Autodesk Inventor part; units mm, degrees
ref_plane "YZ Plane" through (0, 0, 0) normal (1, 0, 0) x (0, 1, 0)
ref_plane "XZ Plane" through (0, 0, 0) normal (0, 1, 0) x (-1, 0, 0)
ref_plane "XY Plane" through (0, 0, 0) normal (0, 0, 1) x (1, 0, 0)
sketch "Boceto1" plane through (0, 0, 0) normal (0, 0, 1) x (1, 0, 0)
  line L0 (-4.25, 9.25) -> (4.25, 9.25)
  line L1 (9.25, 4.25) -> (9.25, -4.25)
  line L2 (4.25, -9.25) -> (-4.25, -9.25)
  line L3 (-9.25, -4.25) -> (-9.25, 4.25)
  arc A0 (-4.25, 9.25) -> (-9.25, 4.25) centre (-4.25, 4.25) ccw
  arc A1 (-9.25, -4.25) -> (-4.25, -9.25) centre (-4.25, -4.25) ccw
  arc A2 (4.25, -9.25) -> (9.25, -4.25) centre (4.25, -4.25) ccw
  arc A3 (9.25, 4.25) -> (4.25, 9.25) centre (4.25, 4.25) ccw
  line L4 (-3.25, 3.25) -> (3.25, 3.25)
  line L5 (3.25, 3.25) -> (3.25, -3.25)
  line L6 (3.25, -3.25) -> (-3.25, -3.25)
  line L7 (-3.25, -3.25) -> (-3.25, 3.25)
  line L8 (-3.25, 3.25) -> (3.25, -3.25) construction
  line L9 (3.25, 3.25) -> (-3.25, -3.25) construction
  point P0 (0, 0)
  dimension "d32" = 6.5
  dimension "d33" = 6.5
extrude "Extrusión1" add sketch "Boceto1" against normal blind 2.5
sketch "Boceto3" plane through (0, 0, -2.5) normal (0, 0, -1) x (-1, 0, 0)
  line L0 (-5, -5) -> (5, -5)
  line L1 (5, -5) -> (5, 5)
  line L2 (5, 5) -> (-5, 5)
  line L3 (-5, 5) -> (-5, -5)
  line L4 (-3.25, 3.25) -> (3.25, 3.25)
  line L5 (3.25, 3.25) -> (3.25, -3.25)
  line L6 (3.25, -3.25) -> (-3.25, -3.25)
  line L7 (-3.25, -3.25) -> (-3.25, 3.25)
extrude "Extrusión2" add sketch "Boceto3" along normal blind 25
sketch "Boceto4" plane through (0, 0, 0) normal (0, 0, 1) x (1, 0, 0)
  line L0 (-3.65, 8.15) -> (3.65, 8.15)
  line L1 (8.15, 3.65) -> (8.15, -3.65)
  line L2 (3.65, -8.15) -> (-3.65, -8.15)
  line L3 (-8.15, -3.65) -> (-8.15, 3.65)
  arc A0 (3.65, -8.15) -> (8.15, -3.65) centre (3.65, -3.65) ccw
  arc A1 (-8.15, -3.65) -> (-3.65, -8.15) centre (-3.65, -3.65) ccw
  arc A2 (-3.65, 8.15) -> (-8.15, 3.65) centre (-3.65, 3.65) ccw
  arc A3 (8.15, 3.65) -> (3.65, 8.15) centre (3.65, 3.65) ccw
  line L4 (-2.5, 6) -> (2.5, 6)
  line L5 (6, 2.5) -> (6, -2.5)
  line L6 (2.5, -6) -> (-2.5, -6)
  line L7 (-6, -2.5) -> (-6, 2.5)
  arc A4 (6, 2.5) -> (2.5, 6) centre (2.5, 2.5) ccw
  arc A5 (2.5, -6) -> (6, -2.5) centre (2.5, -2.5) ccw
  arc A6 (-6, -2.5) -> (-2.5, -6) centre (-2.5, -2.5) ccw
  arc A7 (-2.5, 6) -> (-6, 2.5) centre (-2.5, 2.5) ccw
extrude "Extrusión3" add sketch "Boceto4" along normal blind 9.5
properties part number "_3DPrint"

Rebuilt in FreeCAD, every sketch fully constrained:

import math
import FreeCAD as App
import Part
import Sketcher
from FreeCAD import Vector
Q = App.Units.Quantity


def add_polygon(sketch, points):
    """Adds a closed chain of lines whose ends are joined by coincident constraints."""
    first, n = sketch.GeometryCount, len(points)
    for a, b in zip(points, points[1:] + points[:1]):
        sketch.addGeometry(Part.LineSegment(App.Vector(*a, 0), App.Vector(*b, 0)), False)
    for i in range(n):
        sketch.addConstraint(Sketcher.Constraint("Coincident", first + i, 2, first + (i + 1) % n, 1))

doc = App.newDocument("Part")
body = doc.addObject("PartDesign::Body", "Body")

# Sketch on XY plane
sketch1 = body.newObject("Sketcher::SketchObject", "Sketch")
sketch1.AttachmentSupport = (doc.getObject("XY_Plane"), [""])
sketch1.MapMode = "FlatFace"
sketch1.addGeometry(Part.LineSegment(Vector(4, 9, 0), Vector(-4, 9, 0)), False)  # 0
sketch1.addGeometry(Part.ArcOfCircle(Part.Circle(Vector(-4, 4, 0), Vector(0, 0, 1), 5), math.radians(90), math.radians(180)), False)  # 1
sketch1.addGeometry(Part.LineSegment(Vector(-9, 4, 0), Vector(-9, -4, 0)), False)  # 2
sketch1.addGeometry(Part.ArcOfCircle(Part.Circle(Vector(-4, -4, 0), Vector(0, 0, 1), 5), math.radians(180), math.radians(270)), False)  # 3
sketch1.addGeometry(Part.LineSegment(Vector(-4, -9, 0), Vector(4, -9, 0)), False)  # 4
sketch1.addGeometry(Part.ArcOfCircle(Part.Circle(Vector(4, -4, 0), Vector(0, 0, 1), 5), math.radians(-90), math.radians(0)), False)  # 5
sketch1.addGeometry(Part.LineSegment(Vector(9, -4, 0), Vector(9, 4, 0)), False)  # 6
sketch1.addGeometry(Part.ArcOfCircle(Part.Circle(Vector(4, 4, 0), Vector(0, 0, 1), 5), math.radians(0), math.radians(90)), False)  # 7
add_polygon(sketch1, [(-3, -3), (-3, 3), (3, 3), (3, -3)])  # lines 8-11
sketch1.addConstraint(Sketcher.Constraint("Tangent", 0, 2, 1, 1))
sketch1.addConstraint(Sketcher.Constraint("Tangent", 1, 2, 2, 1))
sketch1.addConstraint(Sketcher.Constraint("Tangent", 2, 2, 3, 1))
sketch1.addConstraint(Sketcher.Constraint("Tangent", 3, 2, 4, 1))
sketch1.addConstraint(Sketcher.Constraint("Tangent", 4, 2, 5, 1))
sketch1.addConstraint(Sketcher.Constraint("Tangent", 5, 2, 6, 1))
sketch1.addConstraint(Sketcher.Constraint("Tangent", 6, 2, 7, 1))
sketch1.addConstraint(Sketcher.Constraint("Tangent", 7, 2, 0, 1))
sketch1.addConstraint(Sketcher.Constraint("Horizontal", 0))
sketch1.addConstraint(Sketcher.Constraint("Vertical", 2))
sketch1.addConstraint(Sketcher.Constraint("Horizontal", 4))
sketch1.addConstraint(Sketcher.Constraint("Vertical", 6))
sketch1.addConstraint(Sketcher.Constraint("Vertical", 8))
sketch1.addConstraint(Sketcher.Constraint("Horizontal", 9))
sketch1.addConstraint(Sketcher.Constraint("Vertical", 10))
sketch1.addConstraint(Sketcher.Constraint("Horizontal", 11))
sketch1.addConstraint(Sketcher.Constraint("Equal", 1, 3))
sketch1.addConstraint(Sketcher.Constraint("Equal", 3, 5))
sketch1.addConstraint(Sketcher.Constraint("Equal", 5, 7))
sketch1.addConstraint(Sketcher.Constraint("Symmetric", 1, 3, 5, 3, -1, 1))
sketch1.addConstraint(Sketcher.Constraint("Symmetric", 8, 2, 10, 2, -1, 1))
sketch1.addConstraint(Sketcher.Constraint("Equal", 4, 2))
sketch1.addConstraint(Sketcher.Constraint("Equal", 11, 8))
sketch1.addConstraint(Sketcher.Constraint("DistanceX", 9, 1, 9, 2, Q("6.5 mm")))
sketch1.addConstraint(Sketcher.Constraint("Radius", 1, Q("5 mm")))
sketch1.addConstraint(Sketcher.Constraint("DistanceX", 0, 2, 0, 1, Q("8.5 mm")))
pad1 = body.newObject("PartDesign::Pad", "Pad")
pad1.Profile = sketch1
pad1.Length = 2.5
pad1.Reversed = True

# Sketch on XY plane
sketch2 = body.newObject("Sketcher::SketchObject", "Sketch001")
sketch2.AttachmentSupport = (doc.getObject("XY_Plane"), [""])
sketch2.MapMode = "FlatFace"
sketch2.AttachmentOffset = App.Placement(Vector(0, 0, -2.5), App.Rotation())
add_polygon(sketch2, [(5, 5), (5, -5), (-5, -5), (-5, 5)])  # lines 0-3
add_polygon(sketch2, [(3, -3), (3, 3), (-3, 3), (-3, -3)])  # lines 4-7
sketch2.addConstraint(Sketcher.Constraint("Vertical", 0))
sketch2.addConstraint(Sketcher.Constraint("Horizontal", 1))
sketch2.addConstraint(Sketcher.Constraint("Vertical", 2))
sketch2.addConstraint(Sketcher.Constraint("Horizontal", 3))
sketch2.addConstraint(Sketcher.Constraint("Vertical", 4))
sketch2.addConstraint(Sketcher.Constraint("Horizontal", 5))
sketch2.addConstraint(Sketcher.Constraint("Vertical", 6))
sketch2.addConstraint(Sketcher.Constraint("Horizontal", 7))
sketch2.addConstraint(Sketcher.Constraint("Symmetric", 0, 2, 2, 2, -1, 1))
sketch2.addConstraint(Sketcher.Constraint("Symmetric", 4, 2, 6, 2, -1, 1))
sketch2.addConstraint(Sketcher.Constraint("Equal", 3, 0))
sketch2.addConstraint(Sketcher.Constraint("Equal", 7, 4))
sketch2.addConstraint(Sketcher.Constraint("DistanceX", 1, 2, 1, 1, Q("10 mm")))
sketch2.addConstraint(Sketcher.Constraint("DistanceX", 5, 2, 5, 1, Q("6.5 mm")))
pad2 = body.newObject("PartDesign::Pad", "Pad001")
pad2.Profile = sketch2
pad2.Length = 25
pad2.Reversed = True

# Sketch on XY plane
sketch3 = body.newObject("Sketcher::SketchObject", "Sketch002")
sketch3.AttachmentSupport = (doc.getObject("XY_Plane"), [""])
sketch3.MapMode = "FlatFace"
sketch3.addGeometry(Part.LineSegment(Vector(3.6, 8.2, 0), Vector(-3.6, 8.2, 0)), False)
sketch3.addGeometry(Part.ArcOfCircle(Part.Circle(Vector(-3.6, 3.6, 0), Vector(0, 0, 1), 4.5), math.radians(90), math.radians(180)), False)
sketch3.addGeometry(Part.LineSegment(Vector(-8.2, 3.6, 0), Vector(-8.2, -3.6, 0)), False)
sketch3.addGeometry(Part.ArcOfCircle(Part.Circle(Vector(-3.6, -3.6, 0), Vector(0, 0, 1), 4.5), math.radians(180), math.radians(270)), False)
sketch3.addGeometry(Part.LineSegment(Vector(-3.6, -8.2, 0), Vector(3.6, -8.2, 0)), False)
sketch3.addGeometry(Part.ArcOfCircle(Part.Circle(Vector(3.6, -3.6, 0), Vector(0, 0, 1), 4.5), math.radians(-90), math.radians(0)), False)
sketch3.addGeometry(Part.LineSegment(Vector(8.2, -3.6, 0), Vector(8.2, 3.6, 0)), False)
sketch3.addGeometry(Part.ArcOfCircle(Part.Circle(Vector(3.6, 3.6, 0), Vector(0, 0, 1), 4.5), math.radians(0), math.radians(90)), False)
sketch3.addGeometry(Part.ArcOfCircle(Part.Circle(Vector(-2.5, 2.5, 0), Vector(0, 0, 1), 3.5), math.radians(90), math.radians(180)), False)
sketch3.addGeometry(Part.LineSegment(Vector(-2.5, 6, 0), Vector(2.5, 6, 0)), False)
sketch3.addGeometry(Part.ArcOfCircle(Part.Circle(Vector(2.5, 2.5, 0), Vector(0, 0, 1), 3.5), math.radians(0), math.radians(90)), False)
sketch3.addGeometry(Part.LineSegment(Vector(6, 2.5, 0), Vector(6, -2.5, 0)), False)
sketch3.addGeometry(Part.ArcOfCircle(Part.Circle(Vector(2.5, -2.5, 0), Vector(0, 0, 1), 3.5), math.radians(-90), math.radians(0)), False)
sketch3.addGeometry(Part.LineSegment(Vector(2.5, -6, 0), Vector(-2.5, -6, 0)), False)
sketch3.addGeometry(Part.ArcOfCircle(Part.Circle(Vector(-2.5, -2.5, 0), Vector(0, 0, 1), 3.5), math.radians(180), math.radians(270)), False)
sketch3.addGeometry(Part.LineSegment(Vector(-6, -2.5, 0), Vector(-6, 2.5, 0)), False)
sketch3.addConstraint(Sketcher.Constraint("Tangent", 0, 2, 1, 1))
sketch3.addConstraint(Sketcher.Constraint("Tangent", 1, 2, 2, 1))
sketch3.addConstraint(Sketcher.Constraint("Tangent", 2, 2, 3, 1))
sketch3.addConstraint(Sketcher.Constraint("Tangent", 3, 2, 4, 1))
sketch3.addConstraint(Sketcher.Constraint("Tangent", 4, 2, 5, 1))
sketch3.addConstraint(Sketcher.Constraint("Tangent", 5, 2, 6, 1))
sketch3.addConstraint(Sketcher.Constraint("Tangent", 6, 2, 7, 1))
sketch3.addConstraint(Sketcher.Constraint("Tangent", 7, 2, 0, 1))
sketch3.addConstraint(Sketcher.Constraint("Tangent", 8, 1, 9, 1))
sketch3.addConstraint(Sketcher.Constraint("Tangent", 9, 2, 10, 2))
sketch3.addConstraint(Sketcher.Constraint("Tangent", 10, 1, 11, 1))
sketch3.addConstraint(Sketcher.Constraint("Tangent", 11, 2, 12, 2))
sketch3.addConstraint(Sketcher.Constraint("Tangent", 12, 1, 13, 1))
sketch3.addConstraint(Sketcher.Constraint("Tangent", 13, 2, 14, 2))
sketch3.addConstraint(Sketcher.Constraint("Tangent", 14, 1, 15, 1))
sketch3.addConstraint(Sketcher.Constraint("Tangent", 15, 2, 8, 2))
sketch3.addConstraint(Sketcher.Constraint("Horizontal", 0))
sketch3.addConstraint(Sketcher.Constraint("Vertical", 2))
sketch3.addConstraint(Sketcher.Constraint("Horizontal", 4))
sketch3.addConstraint(Sketcher.Constraint("Vertical", 6))
sketch3.addConstraint(Sketcher.Constraint("Horizontal", 9))
sketch3.addConstraint(Sketcher.Constraint("Vertical", 11))
sketch3.addConstraint(Sketcher.Constraint("Horizontal", 13))
sketch3.addConstraint(Sketcher.Constraint("Vertical", 15))
sketch3.addConstraint(Sketcher.Constraint("Equal", 1, 3))
sketch3.addConstraint(Sketcher.Constraint("Equal", 3, 5))
sketch3.addConstraint(Sketcher.Constraint("Equal", 5, 7))
sketch3.addConstraint(Sketcher.Constraint("Equal", 8, 10))
sketch3.addConstraint(Sketcher.Constraint("Equal", 10, 12))
sketch3.addConstraint(Sketcher.Constraint("Equal", 12, 14))
sketch3.addConstraint(Sketcher.Constraint("Symmetric", 1, 3, 5, 3, -1, 1))
sketch3.addConstraint(Sketcher.Constraint("Symmetric", 8, 3, 12, 3, -1, 1))
sketch3.addConstraint(Sketcher.Constraint("Equal", 4, 2))
sketch3.addConstraint(Sketcher.Constraint("Equal", 13, 11))
sketch3.addConstraint(Sketcher.Constraint("Radius", 1, Q("4.5 mm")))
sketch3.addConstraint(Sketcher.Constraint("Radius", 8, Q("3.5 mm")))
sketch3.addConstraint(Sketcher.Constraint("DistanceX", 9, 1, 9, 2, Q("5 mm")))
sketch3.addConstraint(Sketcher.Constraint("DistanceX", 0, 2, 0, 1, Q("7.3 mm")))
pad3 = body.newObject("PartDesign::Pad", "Pad002")
pad3.Profile = sketch3
pad3.Length = 9.5

doc.recompute()
